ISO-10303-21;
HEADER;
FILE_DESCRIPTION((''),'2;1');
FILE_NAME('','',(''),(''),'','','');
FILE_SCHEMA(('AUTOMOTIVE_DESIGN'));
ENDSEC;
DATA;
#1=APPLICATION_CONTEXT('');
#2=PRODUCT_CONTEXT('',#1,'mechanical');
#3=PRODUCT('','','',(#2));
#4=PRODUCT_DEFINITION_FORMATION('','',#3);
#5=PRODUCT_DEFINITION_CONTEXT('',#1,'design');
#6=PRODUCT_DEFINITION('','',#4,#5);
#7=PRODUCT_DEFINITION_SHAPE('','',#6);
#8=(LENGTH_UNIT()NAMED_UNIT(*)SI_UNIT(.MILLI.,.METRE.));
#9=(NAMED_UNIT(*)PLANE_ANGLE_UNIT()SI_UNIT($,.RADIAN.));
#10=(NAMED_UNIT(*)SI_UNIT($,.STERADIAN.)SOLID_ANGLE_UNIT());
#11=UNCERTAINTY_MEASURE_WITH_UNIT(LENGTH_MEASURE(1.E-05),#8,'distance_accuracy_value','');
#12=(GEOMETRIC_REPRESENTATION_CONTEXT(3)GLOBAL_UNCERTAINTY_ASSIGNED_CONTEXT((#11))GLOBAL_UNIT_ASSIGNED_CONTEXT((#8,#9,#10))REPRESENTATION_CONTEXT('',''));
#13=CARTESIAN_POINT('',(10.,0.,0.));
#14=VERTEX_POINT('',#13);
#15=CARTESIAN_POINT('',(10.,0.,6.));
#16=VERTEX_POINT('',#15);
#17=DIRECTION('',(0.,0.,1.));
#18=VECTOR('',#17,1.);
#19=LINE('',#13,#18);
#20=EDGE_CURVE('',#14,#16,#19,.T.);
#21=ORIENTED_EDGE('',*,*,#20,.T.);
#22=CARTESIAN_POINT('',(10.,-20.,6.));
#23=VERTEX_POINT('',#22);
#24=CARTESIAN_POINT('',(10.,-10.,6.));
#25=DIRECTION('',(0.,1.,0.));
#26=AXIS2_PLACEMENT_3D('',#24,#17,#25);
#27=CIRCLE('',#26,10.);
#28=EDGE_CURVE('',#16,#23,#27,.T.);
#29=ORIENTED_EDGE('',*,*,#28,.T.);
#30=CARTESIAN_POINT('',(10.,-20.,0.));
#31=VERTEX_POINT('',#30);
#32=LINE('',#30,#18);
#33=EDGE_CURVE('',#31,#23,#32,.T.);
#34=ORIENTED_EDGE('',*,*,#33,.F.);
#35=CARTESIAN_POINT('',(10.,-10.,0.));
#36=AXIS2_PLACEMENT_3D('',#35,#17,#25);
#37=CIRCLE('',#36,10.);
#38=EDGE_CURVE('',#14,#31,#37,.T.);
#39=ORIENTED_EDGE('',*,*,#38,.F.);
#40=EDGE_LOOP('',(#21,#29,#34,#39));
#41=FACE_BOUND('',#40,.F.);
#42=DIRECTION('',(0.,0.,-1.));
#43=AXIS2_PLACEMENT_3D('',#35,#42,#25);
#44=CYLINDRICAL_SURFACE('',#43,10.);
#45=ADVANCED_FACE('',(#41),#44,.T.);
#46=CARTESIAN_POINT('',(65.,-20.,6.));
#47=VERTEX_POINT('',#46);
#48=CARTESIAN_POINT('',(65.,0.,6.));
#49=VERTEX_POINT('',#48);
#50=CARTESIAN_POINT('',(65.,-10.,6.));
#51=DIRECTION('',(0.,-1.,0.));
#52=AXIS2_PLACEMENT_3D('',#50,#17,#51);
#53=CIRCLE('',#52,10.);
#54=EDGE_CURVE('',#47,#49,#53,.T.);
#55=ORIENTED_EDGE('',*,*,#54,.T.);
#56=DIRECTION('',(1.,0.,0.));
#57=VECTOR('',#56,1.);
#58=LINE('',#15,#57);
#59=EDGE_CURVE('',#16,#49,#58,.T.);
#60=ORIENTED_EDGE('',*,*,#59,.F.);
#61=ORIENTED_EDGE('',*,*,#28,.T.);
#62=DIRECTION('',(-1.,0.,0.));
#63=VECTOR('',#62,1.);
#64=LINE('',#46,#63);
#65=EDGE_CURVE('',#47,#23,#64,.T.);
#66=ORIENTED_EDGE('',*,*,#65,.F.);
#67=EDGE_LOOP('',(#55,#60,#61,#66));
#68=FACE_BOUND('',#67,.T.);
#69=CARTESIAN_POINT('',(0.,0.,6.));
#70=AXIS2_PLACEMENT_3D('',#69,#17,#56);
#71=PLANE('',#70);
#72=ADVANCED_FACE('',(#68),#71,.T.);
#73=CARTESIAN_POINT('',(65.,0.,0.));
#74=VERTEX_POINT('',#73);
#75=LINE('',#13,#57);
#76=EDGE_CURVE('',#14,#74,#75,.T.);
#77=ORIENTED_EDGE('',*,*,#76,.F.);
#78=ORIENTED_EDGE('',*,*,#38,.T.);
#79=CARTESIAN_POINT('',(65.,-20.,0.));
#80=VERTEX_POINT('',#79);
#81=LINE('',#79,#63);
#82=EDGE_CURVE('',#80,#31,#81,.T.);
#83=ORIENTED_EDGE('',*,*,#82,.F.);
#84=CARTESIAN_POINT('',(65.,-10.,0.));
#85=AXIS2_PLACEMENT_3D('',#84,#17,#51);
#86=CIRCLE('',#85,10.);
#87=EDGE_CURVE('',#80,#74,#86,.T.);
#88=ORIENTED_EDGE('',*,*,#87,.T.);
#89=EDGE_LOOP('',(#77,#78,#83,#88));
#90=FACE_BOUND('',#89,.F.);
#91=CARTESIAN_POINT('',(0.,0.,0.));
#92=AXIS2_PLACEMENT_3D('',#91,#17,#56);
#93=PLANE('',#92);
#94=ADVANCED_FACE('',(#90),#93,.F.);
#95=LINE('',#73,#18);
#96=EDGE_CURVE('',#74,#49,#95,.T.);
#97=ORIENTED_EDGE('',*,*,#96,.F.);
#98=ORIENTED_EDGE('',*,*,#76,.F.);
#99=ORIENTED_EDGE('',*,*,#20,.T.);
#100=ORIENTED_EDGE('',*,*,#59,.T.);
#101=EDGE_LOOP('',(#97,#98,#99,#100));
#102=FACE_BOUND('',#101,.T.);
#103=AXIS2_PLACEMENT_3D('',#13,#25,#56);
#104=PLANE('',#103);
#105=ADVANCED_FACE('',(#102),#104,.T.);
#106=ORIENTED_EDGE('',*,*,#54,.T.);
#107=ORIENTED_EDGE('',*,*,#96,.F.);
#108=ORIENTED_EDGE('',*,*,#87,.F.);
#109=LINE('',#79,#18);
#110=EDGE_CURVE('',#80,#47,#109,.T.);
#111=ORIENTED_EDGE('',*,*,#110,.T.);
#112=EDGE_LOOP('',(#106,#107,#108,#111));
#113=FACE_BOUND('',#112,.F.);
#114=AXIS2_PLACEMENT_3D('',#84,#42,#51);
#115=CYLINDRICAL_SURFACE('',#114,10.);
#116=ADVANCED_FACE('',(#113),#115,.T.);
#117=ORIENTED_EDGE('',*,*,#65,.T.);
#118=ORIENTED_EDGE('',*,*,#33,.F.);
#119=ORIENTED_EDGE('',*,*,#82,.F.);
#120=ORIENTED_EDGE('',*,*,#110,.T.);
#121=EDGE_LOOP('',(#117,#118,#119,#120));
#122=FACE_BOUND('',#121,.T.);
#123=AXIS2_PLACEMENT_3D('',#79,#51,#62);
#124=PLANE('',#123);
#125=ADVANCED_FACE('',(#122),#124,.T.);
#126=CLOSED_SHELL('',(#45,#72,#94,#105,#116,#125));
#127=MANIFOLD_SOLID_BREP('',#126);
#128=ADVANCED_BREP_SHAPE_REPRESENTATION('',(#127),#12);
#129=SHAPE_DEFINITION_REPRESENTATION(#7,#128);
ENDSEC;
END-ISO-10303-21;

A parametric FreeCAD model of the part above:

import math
import FreeCAD as App
import Part
import Sketcher
from FreeCAD import Vector
Q = App.Units.Quantity

doc = App.newDocument("Part")
params = doc.addObject("Spreadsheet::Sheet", "Params")
for row, (alias, value) in enumerate([
    ("sketch1_radius", "10 mm"),
    ("sketch1_width", "55 mm"),
    ("pad1_length", "6 mm"),
], start=1):
    params.set(f"A{row}", alias)
    params.set(f"B{row}", "=" + value)
    params.setAlias(f"B{row}", alias)

body = doc.addObject("PartDesign::Body", "Body")

sketch1 = doc.addObject("Sketcher::SketchObject", "Sketch")
body.addObject(sketch1)
sketch1.AttachmentSupport = (doc.XY_Plane, [""])
sketch1.MapMode = "FlatFace"
sketch1.addGeometry([
    Part.LineSegment(Vector(65, 0, 0), Vector(10, 0, 0)),
    Part.ArcOfCircle(Part.Circle(Vector(10, -10, 0), Vector(0, 0, 1), 10), math.radians(90), math.radians(270)),
    Part.LineSegment(Vector(10, -20, 0), Vector(65, -20, 0)),
    Part.ArcOfCircle(Part.Circle(Vector(65, -10, 0), Vector(0, 0, 1), 10), math.radians(-90), math.radians(90)),
], False)
sketch1.addConstraint([
    Sketcher.Constraint("Tangent", 0, 2, 1, 1),
    Sketcher.Constraint("Tangent", 1, 2, 2, 1),
    Sketcher.Constraint("Tangent", 2, 2, 3, 1),
    Sketcher.Constraint("Tangent", 3, 2, 0, 1),
    Sketcher.Constraint("Horizontal", 0),
    Sketcher.Constraint("Horizontal", 2),
    Sketcher.Constraint("PointOnObject", 0, 2, -1),
    Sketcher.Constraint("Radius", 1, Q("10 mm")),
    Sketcher.Constraint("DistanceX", 0, 2, 0, 1, Q("55 mm")),
    Sketcher.Constraint("DistanceX", -1, 1, 1, 3, Q("10 mm")),
])
sketch1.setExpression("Constraints[7]", "Params.sketch1_radius")
sketch1.setExpression("Constraints[8]", "Params.sketch1_width")
pad1 = doc.addObject("PartDesign::Pad", "Pad")
body.addObject(pad1)
pad1.Profile = sketch1
pad1.setExpression("Length", "Params.pad1_length")

doc.recompute()
